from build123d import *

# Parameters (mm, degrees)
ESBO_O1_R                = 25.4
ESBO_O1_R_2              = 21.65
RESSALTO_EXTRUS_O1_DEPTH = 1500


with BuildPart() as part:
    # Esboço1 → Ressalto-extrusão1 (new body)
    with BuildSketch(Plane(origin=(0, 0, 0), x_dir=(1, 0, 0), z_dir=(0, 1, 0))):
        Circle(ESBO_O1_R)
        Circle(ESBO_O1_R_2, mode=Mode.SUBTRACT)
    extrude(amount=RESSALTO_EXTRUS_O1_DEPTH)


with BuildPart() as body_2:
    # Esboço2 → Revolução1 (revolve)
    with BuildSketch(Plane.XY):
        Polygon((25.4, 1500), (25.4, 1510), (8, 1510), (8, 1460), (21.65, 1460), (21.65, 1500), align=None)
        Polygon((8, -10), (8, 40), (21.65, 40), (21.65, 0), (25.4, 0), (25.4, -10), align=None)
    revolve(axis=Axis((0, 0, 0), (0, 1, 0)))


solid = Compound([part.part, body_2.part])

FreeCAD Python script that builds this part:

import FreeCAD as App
import Part
import Sketcher


def add_polygon(sketch, points):
    """Adds a closed chain of lines whose ends are joined by coincident constraints."""
    first, n = sketch.GeometryCount, len(points)
    for a, b in zip(points, points[1:] + points[:1]):
        sketch.addGeometry(Part.LineSegment(App.Vector(*a, 0), App.Vector(*b, 0)), False)
    for i in range(n):
        sketch.addConstraint(Sketcher.Constraint("Coincident", first + i, 2, first + (i + 1) % n, 1))

doc = App.newDocument("Part")
body = doc.addObject("PartDesign::Body", "Body")

sketch1 = body.newObject("Sketcher::SketchObject", "Sketch")
sketch1.AttachmentSupport = (doc.getObject("XZ_Plane"), [""])
sketch1.MapMode = "FlatFace"
sketch1.addGeometry(Part.Circle(App.Vector(0, 0, 0), App.Vector(0, 0, 1), 25), False)
sketch1.addGeometry(Part.Circle(App.Vector(0, 0, 0), App.Vector(0, 0, 1), 22), False)
sketch1.addConstraint(Sketcher.Constraint("Coincident", 0, 3, -1, 1))
sketch1.addConstraint(Sketcher.Constraint("Coincident", 1, 3, -1, 1))
sketch1.addConstraint(Sketcher.Constraint("Diameter", 0, 50.8))
sketch1.addConstraint(Sketcher.Constraint("Diameter", 1, 43.3))
pad1 = body.newObject("PartDesign::Pad", "Pad")
pad1.Profile = sketch1
pad1.Length = 1500
pad1.Reversed = True
body2 = doc.addObject("PartDesign::Body", "Body001")
body2.AllowCompound = True

sketch2 = body2.newObject("Sketcher::SketchObject", "Sketch001")
sketch2.AttachmentSupport = (doc.getObject("XY_Plane001"), [""])
sketch2.MapMode = "FlatFace"
add_polygon(sketch2, [(25.4, 1500), (25.4, 1510), (8, 1510), (8, 1460), (21.6, 1460), (21.6, 1500)])
add_polygon(sketch2, [(8, 40), (8, -10), (25.4, -10), (25.4, 0), (21.6, 0), (21.6, 40)])
sketch2.addConstraint(Sketcher.Constraint("Vertical", 0))
sketch2.addConstraint(Sketcher.Constraint("Horizontal", 1))
sketch2.addConstraint(Sketcher.Constraint("Vertical", 2))
sketch2.addConstraint(Sketcher.Constraint("Horizontal", 3))
sketch2.addConstraint(Sketcher.Constraint("Vertical", 4))
sketch2.addConstraint(Sketcher.Constraint("Horizontal", 5))
sketch2.addConstraint(Sketcher.Constraint("Vertical", 6))
sketch2.addConstraint(Sketcher.Constraint("Horizontal", 7))
sketch2.addConstraint(Sketcher.Constraint("Vertical", 8))
sketch2.addConstraint(Sketcher.Constraint("Horizontal", 9))
sketch2.addConstraint(Sketcher.Constraint("Vertical", 10))
sketch2.addConstraint(Sketcher.Constraint("Horizontal", 11))
sketch2.addConstraint(Sketcher.Constraint("PointOnObject", 8, 2, -1))
sketch2.addConstraint(Sketcher.Constraint("Vertical", 2, 2, 6, 2))
sketch2.addConstraint(Sketcher.Constraint("Vertical", 5, 2, 7, 2))
sketch2.addConstraint(Sketcher.Constraint("Vertical", 4, 2, 9, 2))
sketch2.addConstraint(Sketcher.Constraint("Equal", 2, 6))
sketch2.addConstraint(Sketcher.Constraint("Equal", 0, 8))
sketch2.addConstraint(Sketcher.Constraint("DistanceY", 0, 1, 0, 2, 10.0))
sketch2.addConstraint(Sketcher.Constraint("DistanceY", 2, 2, 2, 1, 50.0))
sketch2.addConstraint(Sketcher.Constraint("DistanceX", 1, 2, 1, 1, 17.4))
sketch2.addConstraint(Sketcher.Constraint("DistanceY", -1, 1, 0, 2, 1510.0))
sketch2.addConstraint(Sketcher.Constraint("DistanceX", -1, 1, 1, 2, 8.0))
sketch2.addConstraint(Sketcher.Constraint("DistanceX", 3, 1, 3, 2, 13.65))
revolution = body2.newObject("PartDesign::Revolution", "Revolution")
revolution.Profile = sketch2
revolution.ReferenceAxis = (sketch2, ["V_Axis"])
revolution.Angle = 360

doc.recompute()
